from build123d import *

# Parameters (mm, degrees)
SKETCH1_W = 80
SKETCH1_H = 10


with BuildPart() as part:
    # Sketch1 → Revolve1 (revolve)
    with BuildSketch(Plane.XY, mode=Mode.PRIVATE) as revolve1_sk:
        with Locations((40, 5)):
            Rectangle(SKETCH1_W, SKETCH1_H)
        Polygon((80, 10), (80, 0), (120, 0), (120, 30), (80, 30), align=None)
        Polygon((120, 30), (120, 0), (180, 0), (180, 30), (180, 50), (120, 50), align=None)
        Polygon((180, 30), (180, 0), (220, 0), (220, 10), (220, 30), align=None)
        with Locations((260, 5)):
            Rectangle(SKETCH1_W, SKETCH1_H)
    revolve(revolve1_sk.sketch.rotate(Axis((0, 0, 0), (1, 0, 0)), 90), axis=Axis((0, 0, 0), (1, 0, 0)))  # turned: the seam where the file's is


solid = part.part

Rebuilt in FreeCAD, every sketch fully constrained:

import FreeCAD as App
import Part
import Sketcher
Q = App.Units.Quantity

doc = App.newDocument("Part")
body = doc.addObject("PartDesign::Body", "Body")

# Sketch on XY plane
sketch1 = body.newObject("Sketcher::SketchObject", "Sketch")
sketch1.AttachmentSupport = (doc.getObject("XY_Plane"), [""])
sketch1.MapMode = "FlatFace"
sketch1.addGeometry([
    Part.LineSegment(App.Vector(0, 10, 0), App.Vector(0, 0, 0)),  # 0
    Part.LineSegment(App.Vector(0, 0, 0), App.Vector(300, 0, 0)),  # 1
    Part.LineSegment(App.Vector(300, 0, 0), App.Vector(300, 10, 0)),  # 2
    Part.LineSegment(App.Vector(300, 10, 0), App.Vector(220, 10, 0)),  # 3
    Part.LineSegment(App.Vector(220, 10, 0), App.Vector(220, 30, 0)),  # 4
    Part.LineSegment(App.Vector(220, 30, 0), App.Vector(180, 30, 0)),  # 5
    Part.LineSegment(App.Vector(180, 30, 0), App.Vector(180, 50, 0)),  # 6
    Part.LineSegment(App.Vector(180, 50, 0), App.Vector(120, 50, 0)),  # 7
    Part.LineSegment(App.Vector(120, 50, 0), App.Vector(120, 30, 0)),  # 8
    Part.LineSegment(App.Vector(120, 30, 0), App.Vector(80, 30, 0)),  # 9
    Part.LineSegment(App.Vector(80, 30, 0), App.Vector(80, 10, 0)),  # 10
    Part.LineSegment(App.Vector(80, 10, 0), App.Vector(0, 10, 0)),  # 11
], False)
sketch1.addConstraint([
    Sketcher.Constraint("Coincident", 0, 2, 1, 1),
    Sketcher.Constraint("Coincident", 1, 2, 2, 1),
    Sketcher.Constraint("Coincident", 2, 2, 3, 1),
    Sketcher.Constraint("Coincident", 3, 2, 4, 1),
    Sketcher.Constraint("Coincident", 4, 2, 5, 1),
    Sketcher.Constraint("Coincident", 5, 2, 6, 1),
    Sketcher.Constraint("Coincident", 6, 2, 7, 1),
    Sketcher.Constraint("Coincident", 7, 2, 8, 1),
    Sketcher.Constraint("Coincident", 8, 2, 9, 1),
    Sketcher.Constraint("Coincident", 9, 2, 10, 1),
    Sketcher.Constraint("Coincident", 10, 2, 11, 1),
    Sketcher.Constraint("Coincident", 11, 2, 0, 1),
    Sketcher.Constraint("Vertical", 0),
    Sketcher.Constraint("Horizontal", 1),
    Sketcher.Constraint("Vertical", 2),
    Sketcher.Constraint("Horizontal", 3),
    Sketcher.Constraint("Vertical", 4),
    Sketcher.Constraint("Horizontal", 5),
    Sketcher.Constraint("Vertical", 6),
    Sketcher.Constraint("Horizontal", 7),
    Sketcher.Constraint("Vertical", 8),
    Sketcher.Constraint("Horizontal", 9),
    Sketcher.Constraint("Vertical", 10),
    Sketcher.Constraint("Horizontal", 11),
    Sketcher.Constraint("Coincident", 0, 2, -1, 1),
    Sketcher.Constraint("Horizontal", 5, 2, 8, 2),
    Sketcher.Constraint("Horizontal", 3, 2, 10, 2),
    Sketcher.Constraint("Equal", 5, 9),
    Sketcher.Constraint("Equal", 3, 11),
    Sketcher.Constraint("Equal", 4, 6),
    Sketcher.Constraint("DistanceX", 1, 1, 1, 2, Q("300 mm")),
    Sketcher.Constraint("DistanceX", 3, 2, 3, 1, Q("80 mm")),
    Sketcher.Constraint("DistanceX", 5, 2, 5, 1, Q("40 mm")),
    Sketcher.Constraint("DistanceY", 0, 2, 0, 1, Q("10 mm")),
    Sketcher.Constraint("DistanceY", 4, 1, 4, 2, Q("20 mm")),
])
revolution = body.newObject("PartDesign::Revolution", "Revolution")
revolution.Profile = sketch1
revolution.ReferenceAxis = (sketch1, ["H_Axis"])
revolution.Angle = 360

doc.recompute()
